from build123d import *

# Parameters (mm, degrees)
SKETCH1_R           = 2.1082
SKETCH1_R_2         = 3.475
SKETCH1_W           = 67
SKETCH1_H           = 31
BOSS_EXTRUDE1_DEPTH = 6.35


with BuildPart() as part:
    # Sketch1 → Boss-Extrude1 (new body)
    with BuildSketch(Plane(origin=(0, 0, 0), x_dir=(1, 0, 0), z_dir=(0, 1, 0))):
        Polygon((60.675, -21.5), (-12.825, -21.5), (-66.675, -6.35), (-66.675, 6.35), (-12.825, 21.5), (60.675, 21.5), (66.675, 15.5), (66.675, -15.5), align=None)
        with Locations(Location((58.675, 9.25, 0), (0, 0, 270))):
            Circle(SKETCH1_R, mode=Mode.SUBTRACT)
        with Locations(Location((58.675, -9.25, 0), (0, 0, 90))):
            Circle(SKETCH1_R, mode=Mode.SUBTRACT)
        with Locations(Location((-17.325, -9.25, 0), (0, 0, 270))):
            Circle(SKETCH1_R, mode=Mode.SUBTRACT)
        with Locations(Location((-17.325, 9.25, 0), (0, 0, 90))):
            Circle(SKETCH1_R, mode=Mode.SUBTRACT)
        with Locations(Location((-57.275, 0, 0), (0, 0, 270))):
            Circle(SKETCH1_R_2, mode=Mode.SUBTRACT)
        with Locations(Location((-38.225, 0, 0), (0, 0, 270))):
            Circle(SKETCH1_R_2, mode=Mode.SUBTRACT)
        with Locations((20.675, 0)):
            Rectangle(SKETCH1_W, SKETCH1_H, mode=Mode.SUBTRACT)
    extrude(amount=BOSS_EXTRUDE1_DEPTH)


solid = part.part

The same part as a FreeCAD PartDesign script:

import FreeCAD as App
import Part
import Sketcher
from FreeCAD import Vector
Q = App.Units.Quantity

doc = App.newDocument("Part")
body = doc.addObject("PartDesign::Body", "Body")

# Sketch on XZ plane
sketch1 = doc.addObject("Sketcher::SketchObject", "Sketch")
body.addObject(sketch1)
sketch1.AttachmentSupport = (doc.XZ_Plane, [""])
sketch1.MapMode = "FlatFace"
sketch1.addGeometry([
    Part.LineSegment(Vector(-12.8, 21.5, 0), Vector(60.7, 21.5, 0)),  # 0
    Part.LineSegment(Vector(60.7, 21.5, 0), Vector(66.7, 15.5, 0)),  # 1
    Part.LineSegment(Vector(66.7, 15.5, 0), Vector(66.7, -15.5, 0)),  # 2
    Part.LineSegment(Vector(66.7, -15.5, 0), Vector(60.7, -21.5, 0)),  # 3
    Part.LineSegment(Vector(60.7, -21.5, 0), Vector(-12.8, -21.5, 0)),  # 4
    Part.LineSegment(Vector(-12.8, -21.5, 0), Vector(-66.7, -6.3, 0)),  # 5
    Part.LineSegment(Vector(-66.7, -6.3, 0), Vector(-66.7, 6.3, 0)),  # 6
    Part.LineSegment(Vector(-66.7, 6.3, 0), Vector(-12.8, 21.5, 0)),  # 7
    Part.Circle(Vector(58.7, 9.2, 0), Vector(0, 0, 1), 2.1),  # 8
    Part.Circle(Vector(-17.3, 9.2, 0), Vector(0, 0, 1), 2.1),  # 9
    Part.LineSegment(Vector(-12.8, 15.5, 0), Vector(-12.8, -15.5, 0)),  # 10
    Part.LineSegment(Vector(-12.8, -15.5, 0), Vector(54.2, -15.5, 0)),  # 11
    Part.LineSegment(Vector(54.2, -15.5, 0), Vector(54.2, 15.5, 0)),  # 12
    Part.LineSegment(Vector(54.2, 15.5, 0), Vector(-12.8, 15.5, 0)),  # 13
    Part.Circle(Vector(58.7, -9.2, 0), Vector(0, 0, 1), 2.1),  # 14
    Part.Circle(Vector(-38.2, 0, 0), Vector(0, 0, 1), 3.5),  # 15
    Part.Circle(Vector(-57.3, 0, 0), Vector(0, 0, 1), 3.5),  # 16
    Part.Circle(Vector(-17.3, -9.2, 0), Vector(0, 0, 1), 2.1),  # 17
], False)
sketch1.addConstraint([
    Sketcher.Constraint("Coincident", 0, 2, 1, 1),
    Sketcher.Constraint("Coincident", 1, 2, 2, 1),
    Sketcher.Constraint("Coincident", 2, 2, 3, 1),
    Sketcher.Constraint("Coincident", 3, 2, 4, 1),
    Sketcher.Constraint("Coincident", 4, 2, 5, 1),
    Sketcher.Constraint("Coincident", 5, 2, 6, 1),
    Sketcher.Constraint("Coincident", 6, 2, 7, 1),
    Sketcher.Constraint("Coincident", 7, 2, 0, 1),
    Sketcher.Constraint("Coincident", 10, 2, 11, 1),
    Sketcher.Constraint("Coincident", 11, 2, 12, 1),
    Sketcher.Constraint("Coincident", 12, 2, 13, 1),
    Sketcher.Constraint("Coincident", 13, 2, 10, 1),
    Sketcher.Constraint("Horizontal", 0),
    Sketcher.Constraint("Vertical", 2),
    Sketcher.Constraint("Horizontal", 4),
    Sketcher.Constraint("Vertical", 6),
    Sketcher.Constraint("Vertical", 10),
    Sketcher.Constraint("Horizontal", 11),
    Sketcher.Constraint("Vertical", 12),
    Sketcher.Constraint("Horizontal", 13),
    Sketcher.Constraint("Equal", 8, 9),
    Sketcher.Constraint("Equal", 9, 14),
    Sketcher.Constraint("Equal", 15, 16),
    Sketcher.Constraint("Equal", 14, 17),
    Sketcher.Constraint("Symmetric", 8, 3, 14, 3, -1),
    Sketcher.Constraint("Symmetric", 9, 3, 17, 3, -1),
    Sketcher.Constraint("Symmetric", 0, 2, 3, 2, -1),
    Sketcher.Constraint("PointOnObject", 15, 3, -1),
    Sketcher.Constraint("PointOnObject", 16, 3, -1),
    Sketcher.Constraint("Perpendicular", 1, 3),
    Sketcher.Constraint("Horizontal", 8, 3, 9, 3),
    Sketcher.Constraint("Horizontal", 2, 2, 10, 2),
    Sketcher.Constraint("Horizontal", 1, 2, 12, 2),
    Sketcher.Constraint("Vertical", 4, 2, 7, 2),
    Sketcher.Constraint("Vertical", 7, 2, 10, 2),
    Sketcher.Constraint("Equal", 1, 3),
    Sketcher.Constraint("Equal", 5, 7),
    Sketcher.Constraint("Diameter", 15, Q("6.95 mm")),
    Sketcher.Constraint("DistanceX", 11, 1, 11, 2, Q("67 mm")),
    Sketcher.Constraint("DistanceY", 2, 2, 2, 1, Q("31 mm")),
    Sketcher.Constraint("DistanceX", 0, 1, 0, 2, Q("73.5 mm")),
    Sketcher.Constraint("DistanceY", 6, 1, 6, 2, Q("12.7 mm")),
    Sketcher.Constraint("DistanceX", 9, 3, 8, 3, Q("76 mm")),
    Sketcher.Constraint("DistanceX", 8, 3, 0, 2, Q("2 mm")),
    Sketcher.Constraint("DistanceX", 0, 2, 1, 2, Q("6 mm")),
    Sketcher.Constraint("Diameter", 8, Q("4.2164 mm")),
    Sketcher.Constraint("DistanceY", 14, 3, 8, 3, Q("18.5 mm")),
    Sketcher.Constraint("DistanceX", 15, 3, 9, 3, Q("20.9 mm")),
    Sketcher.Constraint("DistanceX", 5, 2, 16, 3, Q("9.4 mm")),
    Sketcher.Constraint("DistanceX", 16, 3, 15, 3, Q("19.05 mm")),
    Sketcher.Constraint("DistanceX", -1, 1, 8, 3, Q("58.675 mm")),
])
pad1 = doc.addObject("PartDesign::Pad", "Pad")
body.addObject(pad1)
pad1.Profile = sketch1
pad1.Length = 6.35
pad1.Reversed = True

doc.recompute()
